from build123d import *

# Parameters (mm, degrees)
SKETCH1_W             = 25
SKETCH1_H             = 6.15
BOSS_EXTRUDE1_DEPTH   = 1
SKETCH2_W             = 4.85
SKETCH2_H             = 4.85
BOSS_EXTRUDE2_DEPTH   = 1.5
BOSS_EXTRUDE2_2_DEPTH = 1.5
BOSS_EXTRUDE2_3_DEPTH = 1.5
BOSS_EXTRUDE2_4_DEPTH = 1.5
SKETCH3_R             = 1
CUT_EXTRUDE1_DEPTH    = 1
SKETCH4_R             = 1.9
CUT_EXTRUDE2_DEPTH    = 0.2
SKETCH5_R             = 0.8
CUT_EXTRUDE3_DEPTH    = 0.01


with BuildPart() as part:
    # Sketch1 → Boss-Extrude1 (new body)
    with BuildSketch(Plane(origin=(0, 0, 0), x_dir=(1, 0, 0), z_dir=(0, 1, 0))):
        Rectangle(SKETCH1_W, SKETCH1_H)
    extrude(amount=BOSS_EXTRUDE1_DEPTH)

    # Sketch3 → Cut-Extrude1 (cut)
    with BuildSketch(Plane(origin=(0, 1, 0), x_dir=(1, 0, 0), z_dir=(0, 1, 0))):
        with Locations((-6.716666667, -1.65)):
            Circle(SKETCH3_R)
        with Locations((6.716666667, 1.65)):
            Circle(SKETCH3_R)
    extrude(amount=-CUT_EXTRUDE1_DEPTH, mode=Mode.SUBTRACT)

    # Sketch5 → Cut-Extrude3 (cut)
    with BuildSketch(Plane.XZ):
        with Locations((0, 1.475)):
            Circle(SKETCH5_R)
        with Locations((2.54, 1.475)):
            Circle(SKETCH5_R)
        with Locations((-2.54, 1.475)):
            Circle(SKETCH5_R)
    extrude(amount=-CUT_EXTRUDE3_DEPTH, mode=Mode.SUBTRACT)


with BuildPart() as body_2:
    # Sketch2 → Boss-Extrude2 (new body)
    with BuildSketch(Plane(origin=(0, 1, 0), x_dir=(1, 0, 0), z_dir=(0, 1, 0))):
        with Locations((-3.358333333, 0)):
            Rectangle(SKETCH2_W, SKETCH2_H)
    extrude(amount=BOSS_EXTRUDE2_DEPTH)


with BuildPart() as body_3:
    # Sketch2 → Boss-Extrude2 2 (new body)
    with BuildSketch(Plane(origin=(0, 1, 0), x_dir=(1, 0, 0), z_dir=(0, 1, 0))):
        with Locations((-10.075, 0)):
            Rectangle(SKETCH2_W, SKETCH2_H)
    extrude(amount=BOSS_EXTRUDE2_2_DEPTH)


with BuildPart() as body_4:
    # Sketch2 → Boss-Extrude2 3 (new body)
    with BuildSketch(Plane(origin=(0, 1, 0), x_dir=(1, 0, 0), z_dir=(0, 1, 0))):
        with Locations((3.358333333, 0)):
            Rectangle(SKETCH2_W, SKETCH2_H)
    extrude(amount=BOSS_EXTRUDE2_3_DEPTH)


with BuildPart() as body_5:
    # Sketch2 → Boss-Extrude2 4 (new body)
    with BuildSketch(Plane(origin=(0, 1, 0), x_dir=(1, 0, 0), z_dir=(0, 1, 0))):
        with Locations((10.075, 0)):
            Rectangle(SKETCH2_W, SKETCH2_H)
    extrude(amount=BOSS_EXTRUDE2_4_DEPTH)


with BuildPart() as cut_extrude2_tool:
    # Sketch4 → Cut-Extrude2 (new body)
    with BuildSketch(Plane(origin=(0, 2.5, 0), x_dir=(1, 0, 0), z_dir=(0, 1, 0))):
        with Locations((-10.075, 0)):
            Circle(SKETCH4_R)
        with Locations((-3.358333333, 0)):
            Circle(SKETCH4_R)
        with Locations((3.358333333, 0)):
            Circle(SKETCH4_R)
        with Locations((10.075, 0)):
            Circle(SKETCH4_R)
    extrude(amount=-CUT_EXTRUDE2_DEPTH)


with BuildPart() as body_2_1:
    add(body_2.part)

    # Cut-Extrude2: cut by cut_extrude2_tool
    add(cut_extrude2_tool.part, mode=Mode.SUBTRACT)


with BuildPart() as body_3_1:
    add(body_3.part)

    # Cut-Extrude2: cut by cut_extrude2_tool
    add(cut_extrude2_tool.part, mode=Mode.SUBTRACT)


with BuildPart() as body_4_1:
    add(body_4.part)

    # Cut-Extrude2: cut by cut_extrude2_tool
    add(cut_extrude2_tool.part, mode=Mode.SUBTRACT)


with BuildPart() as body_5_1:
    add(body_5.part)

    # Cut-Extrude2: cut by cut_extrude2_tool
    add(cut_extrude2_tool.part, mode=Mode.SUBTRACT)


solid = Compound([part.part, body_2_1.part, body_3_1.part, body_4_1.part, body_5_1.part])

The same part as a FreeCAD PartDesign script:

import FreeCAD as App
import Part
import Sketcher

V = App.Vector


def add_polygon(sketch, points):
    """Adds a closed chain of lines whose ends are joined by coincident constraints."""
    first, n = sketch.GeometryCount, len(points)
    for a, b in zip(points, points[1:] + points[:1]):
        sketch.addGeometry(Part.LineSegment(App.Vector(*a, 0), App.Vector(*b, 0)), False)
    for i in range(n):
        sketch.addConstraint(Sketcher.Constraint("Coincident", first + i, 2, first + (i + 1) % n, 1))

doc = App.newDocument("Part")
params = doc.addObject("Spreadsheet::Sheet", "Params")
for row, (alias, value) in enumerate([
    ("sketch1_width", "25 mm"),
    ("sketch1_height", "6.15 mm"),
    ("pad1_length", "1 mm"),
    ("sketch2_diameter", "2 mm"),
    ("pocket1_length", "1 mm"),
    ("sketch3_diameter", "1.6 mm"),
    ("pocket2_length", "0.01 mm"),
    ("sketch4_width", "4.85 mm"),
    ("pad2_length", "1.5 mm"),
    ("sketch5_width", "4.85 mm"),
    ("pad3_length", "1.5 mm"),
    ("sketch6_width", "4.85 mm"),
    ("pad4_length", "1.5 mm"),
    ("sketch7_width", "4.85 mm"),
    ("pad5_length", "1.5 mm"),
    ("sketch8_diameter", "3.8 mm"),
    ("pad6_length", "0.2 mm"),
], start=1):
    params.set(f"A{row}", alias)
    params.set(f"B{row}", "=" + value)
    params.setAlias(f"B{row}", alias)

body = doc.addObject("PartDesign::Body", "Body")

# Sketch on XZ plane
sketch1 = doc.addObject("Sketcher::SketchObject", "Sketch")
body.addObject(sketch1)
sketch1.AttachmentSupport = (doc.XZ_Plane, [""])
sketch1.MapMode = "FlatFace"
add_polygon(sketch1, [(-12.5, -3.075), (-12.5, 3.075), (12.5, 3.075), (12.5, -3.075)])  # lines 0-3
sketch1.addConstraint([
    Sketcher.Constraint("Vertical", 0),
    Sketcher.Constraint("Horizontal", 1),
    Sketcher.Constraint("Vertical", 2),
    Sketcher.Constraint("Horizontal", 3),
    Sketcher.Constraint("Symmetric", 0, 2, 2, 2, -1, 1),
    Sketcher.Constraint("DistanceX", 1, 1, 1, 2, 25.0),
    Sketcher.Constraint("DistanceY", 0, 1, 0, 2, 6.15),
])
sketch1.setExpression("Constraints[9]", "Params.sketch1_width")
sketch1.setExpression("Constraints[10]", "Params.sketch1_height")
pad1 = doc.addObject("PartDesign::Pad", "Pad")
body.addObject(pad1)
pad1.Profile = sketch1
pad1.setExpression("Length", "Params.pad1_length")
pad1.Reversed = True

# Sketch on XZ plane
sketch2 = doc.addObject("Sketcher::SketchObject", "Sketch001")
body.addObject(sketch2)
sketch2.AttachmentSupport = (doc.XZ_Plane, [""])
sketch2.MapMode = "FlatFace"
sketch2.AttachmentOffset = App.Placement(V(0, 0, -1), App.Rotation())
sketch2.addGeometry([
    Part.Circle(V(-6.716667, 1.65, 0), V(0, 0, 1), 1),
    Part.Circle(V(6.716667, -1.65, 0), V(0, 0, 1), 1),
], False)
sketch2.addConstraint([
    Sketcher.Constraint("Equal", 0, 1),
    Sketcher.Constraint("Symmetric", 0, 3, 1, 3, -1, 1),
    Sketcher.Constraint("Diameter", 0, 2.0),
    Sketcher.Constraint("DistanceY", 1, 3, 0, 3, 3.3),
    Sketcher.Constraint("DistanceX", 0, 3, -1, 1, 6.716667),
])
sketch2.setExpression("Constraints[2]", "Params.sketch2_diameter")
pocket1 = doc.addObject("PartDesign::Pocket", "Pocket")
body.addObject(pocket1)
pocket1.Profile = sketch2
pocket1.setExpression("Length", "Params.pocket1_length")
pocket1.Reversed = True

# Sketch on XZ plane
sketch3 = doc.addObject("Sketcher::SketchObject", "Sketch002")
body.addObject(sketch3)
sketch3.AttachmentSupport = (doc.XZ_Plane, [""])
sketch3.MapMode = "FlatFace"
sketch3.addGeometry([
    Part.Circle(V(0, 1.475, 0), V(0, 0, 1), 0.8),
    Part.Circle(V(2.54, 1.475, 0), V(0, 0, 1), 0.8),
    Part.Circle(V(-2.54, 1.475, 0), V(0, 0, 1), 0.8),
], False)
sketch3.addConstraint([
    Sketcher.Constraint("Equal", 0, 1),
    Sketcher.Constraint("Equal", 1, 2),
    Sketcher.Constraint("Symmetric", 1, 3, 2, 3, -2),
    Sketcher.Constraint("PointOnObject", 0, 3, -2),
    Sketcher.Constraint("Horizontal", 0, 3, 1, 3),
    Sketcher.Constraint("Diameter", 0, 1.6),
    Sketcher.Constraint("DistanceX", -1, 1, 1, 3, 2.54),
    Sketcher.Constraint("DistanceY", -1, 1, 0, 3, 1.475),
])
sketch3.setExpression("Constraints[5]", "Params.sketch3_diameter")
pocket2 = doc.addObject("PartDesign::Pocket", "Pocket001")
body.addObject(pocket2)
pocket2.Profile = sketch3
pocket2.setExpression("Length", "Params.pocket2_length")
body2 = doc.addObject("PartDesign::Body", "Body001")

# Sketch on XZ plane
sketch4 = doc.addObject("Sketcher::SketchObject", "Sketch003")
body2.addObject(sketch4)
sketch4.AttachmentSupport = (doc.getObject("XZ_Plane001"), [""])
sketch4.MapMode = "FlatFace"
sketch4.AttachmentOffset = App.Placement(V(0, 0, -1), App.Rotation())
add_polygon(sketch4, [(-5.783333, -2.425), (-5.783333, 2.425), (-0.933333, 2.425), (-0.933333, -2.425)])  # lines 0-3
sketch4.addConstraint([
    Sketcher.Constraint("Vertical", 0),
    Sketcher.Constraint("Horizontal", 1),
    Sketcher.Constraint("Vertical", 2),
    Sketcher.Constraint("Horizontal", 3),
    Sketcher.Constraint("Equal", 3, 0),
    Sketcher.Constraint("DistanceX", 1, 1, 1, 2, 4.85),
    Sketcher.Constraint("DistanceY", -1, 1, 0, 2, 2.425),
    Sketcher.Constraint("DistanceX", 0, 2, -1, 1, 5.783333),
])
sketch4.setExpression("Constraints[9]", "Params.sketch4_width")
pad2 = doc.addObject("PartDesign::Pad", "Pad001")
body2.addObject(pad2)
pad2.Profile = sketch4
pad2.setExpression("Length", "Params.pad2_length")
pad2.Reversed = True
body3 = doc.addObject("PartDesign::Body", "Body002")

# Sketch on XZ plane
sketch5 = doc.addObject("Sketcher::SketchObject", "Sketch004")
body3.addObject(sketch5)
sketch5.AttachmentSupport = (doc.getObject("XZ_Plane002"), [""])
sketch5.MapMode = "FlatFace"
sketch5.AttachmentOffset = App.Placement(V(0, 0, -1), App.Rotation())
add_polygon(sketch5, [(-12.5, -2.425), (-12.5, 2.425), (-7.65, 2.425), (-7.65, -2.425)])  # lines 0-3
sketch5.addConstraint([
    Sketcher.Constraint("Vertical", 0),
    Sketcher.Constraint("Horizontal", 1),
    Sketcher.Constraint("Vertical", 2),
    Sketcher.Constraint("Horizontal", 3),
    Sketcher.Constraint("Equal", 3, 0),
    Sketcher.Constraint("DistanceX", 1, 1, 1, 2, 4.85),
    Sketcher.Constraint("DistanceX", 0, 2, -1, 1, 12.5),
    Sketcher.Constraint("DistanceY", -1, 1, 0, 2, 2.425),
])
sketch5.setExpression("Constraints[9]", "Params.sketch5_width")
pad3 = doc.addObject("PartDesign::Pad", "Pad002")
body3.addObject(pad3)
pad3.Profile = sketch5
pad3.setExpression("Length", "Params.pad3_length")
pad3.Reversed = True
body4 = doc.addObject("PartDesign::Body", "Body003")

# Sketch on XZ plane
sketch6 = doc.addObject("Sketcher::SketchObject", "Sketch005")
body4.addObject(sketch6)
sketch6.AttachmentSupport = (doc.getObject("XZ_Plane003"), [""])
sketch6.MapMode = "FlatFace"
sketch6.AttachmentOffset = App.Placement(V(0, 0, -1), App.Rotation())
add_polygon(sketch6, [(0.933333, -2.425), (0.933333, 2.425), (5.783333, 2.425), (5.783333, -2.425)])  # lines 0-3
sketch6.addConstraint([
    Sketcher.Constraint("Vertical", 0),
    Sketcher.Constraint("Horizontal", 1),
    Sketcher.Constraint("Vertical", 2),
    Sketcher.Constraint("Horizontal", 3),
    Sketcher.Constraint("Equal", 3, 0),
    Sketcher.Constraint("DistanceX", 1, 1, 1, 2, 4.85),
    Sketcher.Constraint("DistanceY", -1, 1, 0, 2, 2.425),
    Sketcher.Constraint("DistanceX", -1, 1, 0, 2, 0.933333),
])
sketch6.setExpression("Constraints[9]", "Params.sketch6_width")
pad4 = doc.addObject("PartDesign::Pad", "Pad003")
body4.addObject(pad4)
pad4.Profile = sketch6
pad4.setExpression("Length", "Params.pad4_length")
pad4.Reversed = True
body5 = doc.addObject("PartDesign::Body", "Body004")

# Sketch on XZ plane
sketch7 = doc.addObject("Sketcher::SketchObject", "Sketch006")
body5.addObject(sketch7)
sketch7.AttachmentSupport = (doc.getObject("XZ_Plane004"), [""])
sketch7.MapMode = "FlatFace"
sketch7.AttachmentOffset = App.Placement(V(0, 0, -1), App.Rotation())
add_polygon(sketch7, [(7.65, -2.425), (7.65, 2.425), (12.5, 2.425), (12.5, -2.425)])  # lines 0-3
sketch7.addConstraint([
    Sketcher.Constraint("Vertical", 0),
    Sketcher.Constraint("Horizontal", 1),
    Sketcher.Constraint("Vertical", 2),
    Sketcher.Constraint("Horizontal", 3),
    Sketcher.Constraint("Equal", 3, 0),
    Sketcher.Constraint("DistanceX", 1, 1, 1, 2, 4.85),
    Sketcher.Constraint("DistanceX", -1, 1, 1, 2, 12.5),
    Sketcher.Constraint("DistanceY", -1, 1, 0, 2, 2.425),
])
sketch7.setExpression("Constraints[9]", "Params.sketch7_width")
pad5 = doc.addObject("PartDesign::Pad", "Pad004")
body5.addObject(pad5)
pad5.Profile = sketch7
pad5.setExpression("Length", "Params.pad5_length")
pad5.Reversed = True
body6 = doc.addObject("PartDesign::Body", "Body005")
body6.AllowCompound = True

# Sketch on XZ plane
sketch8 = doc.addObject("Sketcher::SketchObject", "Sketch007")
body6.addObject(sketch8)
sketch8.AttachmentSupport = (doc.getObject("XZ_Plane005"), [""])
sketch8.MapMode = "FlatFace"
sketch8.AttachmentOffset = App.Placement(V(0, 0, -2.5), App.Rotation())
sketch8.addGeometry([
    Part.Circle(V(-10.075, 0, 0), V(0, 0, 1), 1.9),
    Part.Circle(V(-3.358333, 0, 0), V(0, 0, 1), 1.9),
    Part.Circle(V(3.358333, 0, 0), V(0, 0, 1), 1.9),
    Part.Circle(V(10.075, 0, 0), V(0, 0, 1), 1.9),
], False)
sketch8.addConstraint([
    Sketcher.Constraint("Equal", 0, 1),
    Sketcher.Constraint("Equal", 1, 2),
    Sketcher.Constraint("Equal", 2, 3),
    Sketcher.Constraint("Symmetric", 1, 3, 2, 3, -1, 1),
    Sketcher.Constraint("Symmetric", 0, 3, 3, 3, -1, 1),
    Sketcher.Constraint("PointOnObject", 0, 3, -1),
    Sketcher.Constraint("PointOnObject", 1, 3, -1),
    Sketcher.Constraint("Diameter", 0, 3.8),
    Sketcher.Constraint("DistanceX", 0, 3, 3, 3, 20.15),
    Sketcher.Constraint("DistanceX", 1, 3, -1, 1, 3.358333),
])
sketch8.setExpression("Constraints[7]", "Params.sketch8_diameter")
pad6 = doc.addObject("PartDesign::Pad", "Pad005")
body6.addObject(pad6)
pad6.Profile = sketch8
pad6.setExpression("Length", "Params.pad6_length")
doc.recompute()

body7 = doc.addObject("PartDesign::Body", "Body006")
body7.BaseFeature = body6
boolean = doc.addObject("PartDesign::Boolean", "Boolean")
body2.addObject(boolean)
boolean.Type = "Cut"
boolean.addObjects([body7])
doc.recompute()

body8 = doc.addObject("PartDesign::Body", "Body007")
body8.BaseFeature = body6
boolean2 = doc.addObject("PartDesign::Boolean", "Boolean001")
body3.addObject(boolean2)
boolean2.Type = "Cut"
boolean2.addObjects([body8])
doc.recompute()

body9 = doc.addObject("PartDesign::Body", "Body008")
body9.BaseFeature = body6
boolean3 = doc.addObject("PartDesign::Boolean", "Boolean002")
body4.addObject(boolean3)
boolean3.Type = "Cut"
boolean3.addObjects([body9])
doc.recompute()

boolean4 = doc.addObject("PartDesign::Boolean", "Boolean003")
body5.addObject(boolean4)
boolean4.Type = "Cut"
boolean4.addObjects([body6])

doc.recompute()
